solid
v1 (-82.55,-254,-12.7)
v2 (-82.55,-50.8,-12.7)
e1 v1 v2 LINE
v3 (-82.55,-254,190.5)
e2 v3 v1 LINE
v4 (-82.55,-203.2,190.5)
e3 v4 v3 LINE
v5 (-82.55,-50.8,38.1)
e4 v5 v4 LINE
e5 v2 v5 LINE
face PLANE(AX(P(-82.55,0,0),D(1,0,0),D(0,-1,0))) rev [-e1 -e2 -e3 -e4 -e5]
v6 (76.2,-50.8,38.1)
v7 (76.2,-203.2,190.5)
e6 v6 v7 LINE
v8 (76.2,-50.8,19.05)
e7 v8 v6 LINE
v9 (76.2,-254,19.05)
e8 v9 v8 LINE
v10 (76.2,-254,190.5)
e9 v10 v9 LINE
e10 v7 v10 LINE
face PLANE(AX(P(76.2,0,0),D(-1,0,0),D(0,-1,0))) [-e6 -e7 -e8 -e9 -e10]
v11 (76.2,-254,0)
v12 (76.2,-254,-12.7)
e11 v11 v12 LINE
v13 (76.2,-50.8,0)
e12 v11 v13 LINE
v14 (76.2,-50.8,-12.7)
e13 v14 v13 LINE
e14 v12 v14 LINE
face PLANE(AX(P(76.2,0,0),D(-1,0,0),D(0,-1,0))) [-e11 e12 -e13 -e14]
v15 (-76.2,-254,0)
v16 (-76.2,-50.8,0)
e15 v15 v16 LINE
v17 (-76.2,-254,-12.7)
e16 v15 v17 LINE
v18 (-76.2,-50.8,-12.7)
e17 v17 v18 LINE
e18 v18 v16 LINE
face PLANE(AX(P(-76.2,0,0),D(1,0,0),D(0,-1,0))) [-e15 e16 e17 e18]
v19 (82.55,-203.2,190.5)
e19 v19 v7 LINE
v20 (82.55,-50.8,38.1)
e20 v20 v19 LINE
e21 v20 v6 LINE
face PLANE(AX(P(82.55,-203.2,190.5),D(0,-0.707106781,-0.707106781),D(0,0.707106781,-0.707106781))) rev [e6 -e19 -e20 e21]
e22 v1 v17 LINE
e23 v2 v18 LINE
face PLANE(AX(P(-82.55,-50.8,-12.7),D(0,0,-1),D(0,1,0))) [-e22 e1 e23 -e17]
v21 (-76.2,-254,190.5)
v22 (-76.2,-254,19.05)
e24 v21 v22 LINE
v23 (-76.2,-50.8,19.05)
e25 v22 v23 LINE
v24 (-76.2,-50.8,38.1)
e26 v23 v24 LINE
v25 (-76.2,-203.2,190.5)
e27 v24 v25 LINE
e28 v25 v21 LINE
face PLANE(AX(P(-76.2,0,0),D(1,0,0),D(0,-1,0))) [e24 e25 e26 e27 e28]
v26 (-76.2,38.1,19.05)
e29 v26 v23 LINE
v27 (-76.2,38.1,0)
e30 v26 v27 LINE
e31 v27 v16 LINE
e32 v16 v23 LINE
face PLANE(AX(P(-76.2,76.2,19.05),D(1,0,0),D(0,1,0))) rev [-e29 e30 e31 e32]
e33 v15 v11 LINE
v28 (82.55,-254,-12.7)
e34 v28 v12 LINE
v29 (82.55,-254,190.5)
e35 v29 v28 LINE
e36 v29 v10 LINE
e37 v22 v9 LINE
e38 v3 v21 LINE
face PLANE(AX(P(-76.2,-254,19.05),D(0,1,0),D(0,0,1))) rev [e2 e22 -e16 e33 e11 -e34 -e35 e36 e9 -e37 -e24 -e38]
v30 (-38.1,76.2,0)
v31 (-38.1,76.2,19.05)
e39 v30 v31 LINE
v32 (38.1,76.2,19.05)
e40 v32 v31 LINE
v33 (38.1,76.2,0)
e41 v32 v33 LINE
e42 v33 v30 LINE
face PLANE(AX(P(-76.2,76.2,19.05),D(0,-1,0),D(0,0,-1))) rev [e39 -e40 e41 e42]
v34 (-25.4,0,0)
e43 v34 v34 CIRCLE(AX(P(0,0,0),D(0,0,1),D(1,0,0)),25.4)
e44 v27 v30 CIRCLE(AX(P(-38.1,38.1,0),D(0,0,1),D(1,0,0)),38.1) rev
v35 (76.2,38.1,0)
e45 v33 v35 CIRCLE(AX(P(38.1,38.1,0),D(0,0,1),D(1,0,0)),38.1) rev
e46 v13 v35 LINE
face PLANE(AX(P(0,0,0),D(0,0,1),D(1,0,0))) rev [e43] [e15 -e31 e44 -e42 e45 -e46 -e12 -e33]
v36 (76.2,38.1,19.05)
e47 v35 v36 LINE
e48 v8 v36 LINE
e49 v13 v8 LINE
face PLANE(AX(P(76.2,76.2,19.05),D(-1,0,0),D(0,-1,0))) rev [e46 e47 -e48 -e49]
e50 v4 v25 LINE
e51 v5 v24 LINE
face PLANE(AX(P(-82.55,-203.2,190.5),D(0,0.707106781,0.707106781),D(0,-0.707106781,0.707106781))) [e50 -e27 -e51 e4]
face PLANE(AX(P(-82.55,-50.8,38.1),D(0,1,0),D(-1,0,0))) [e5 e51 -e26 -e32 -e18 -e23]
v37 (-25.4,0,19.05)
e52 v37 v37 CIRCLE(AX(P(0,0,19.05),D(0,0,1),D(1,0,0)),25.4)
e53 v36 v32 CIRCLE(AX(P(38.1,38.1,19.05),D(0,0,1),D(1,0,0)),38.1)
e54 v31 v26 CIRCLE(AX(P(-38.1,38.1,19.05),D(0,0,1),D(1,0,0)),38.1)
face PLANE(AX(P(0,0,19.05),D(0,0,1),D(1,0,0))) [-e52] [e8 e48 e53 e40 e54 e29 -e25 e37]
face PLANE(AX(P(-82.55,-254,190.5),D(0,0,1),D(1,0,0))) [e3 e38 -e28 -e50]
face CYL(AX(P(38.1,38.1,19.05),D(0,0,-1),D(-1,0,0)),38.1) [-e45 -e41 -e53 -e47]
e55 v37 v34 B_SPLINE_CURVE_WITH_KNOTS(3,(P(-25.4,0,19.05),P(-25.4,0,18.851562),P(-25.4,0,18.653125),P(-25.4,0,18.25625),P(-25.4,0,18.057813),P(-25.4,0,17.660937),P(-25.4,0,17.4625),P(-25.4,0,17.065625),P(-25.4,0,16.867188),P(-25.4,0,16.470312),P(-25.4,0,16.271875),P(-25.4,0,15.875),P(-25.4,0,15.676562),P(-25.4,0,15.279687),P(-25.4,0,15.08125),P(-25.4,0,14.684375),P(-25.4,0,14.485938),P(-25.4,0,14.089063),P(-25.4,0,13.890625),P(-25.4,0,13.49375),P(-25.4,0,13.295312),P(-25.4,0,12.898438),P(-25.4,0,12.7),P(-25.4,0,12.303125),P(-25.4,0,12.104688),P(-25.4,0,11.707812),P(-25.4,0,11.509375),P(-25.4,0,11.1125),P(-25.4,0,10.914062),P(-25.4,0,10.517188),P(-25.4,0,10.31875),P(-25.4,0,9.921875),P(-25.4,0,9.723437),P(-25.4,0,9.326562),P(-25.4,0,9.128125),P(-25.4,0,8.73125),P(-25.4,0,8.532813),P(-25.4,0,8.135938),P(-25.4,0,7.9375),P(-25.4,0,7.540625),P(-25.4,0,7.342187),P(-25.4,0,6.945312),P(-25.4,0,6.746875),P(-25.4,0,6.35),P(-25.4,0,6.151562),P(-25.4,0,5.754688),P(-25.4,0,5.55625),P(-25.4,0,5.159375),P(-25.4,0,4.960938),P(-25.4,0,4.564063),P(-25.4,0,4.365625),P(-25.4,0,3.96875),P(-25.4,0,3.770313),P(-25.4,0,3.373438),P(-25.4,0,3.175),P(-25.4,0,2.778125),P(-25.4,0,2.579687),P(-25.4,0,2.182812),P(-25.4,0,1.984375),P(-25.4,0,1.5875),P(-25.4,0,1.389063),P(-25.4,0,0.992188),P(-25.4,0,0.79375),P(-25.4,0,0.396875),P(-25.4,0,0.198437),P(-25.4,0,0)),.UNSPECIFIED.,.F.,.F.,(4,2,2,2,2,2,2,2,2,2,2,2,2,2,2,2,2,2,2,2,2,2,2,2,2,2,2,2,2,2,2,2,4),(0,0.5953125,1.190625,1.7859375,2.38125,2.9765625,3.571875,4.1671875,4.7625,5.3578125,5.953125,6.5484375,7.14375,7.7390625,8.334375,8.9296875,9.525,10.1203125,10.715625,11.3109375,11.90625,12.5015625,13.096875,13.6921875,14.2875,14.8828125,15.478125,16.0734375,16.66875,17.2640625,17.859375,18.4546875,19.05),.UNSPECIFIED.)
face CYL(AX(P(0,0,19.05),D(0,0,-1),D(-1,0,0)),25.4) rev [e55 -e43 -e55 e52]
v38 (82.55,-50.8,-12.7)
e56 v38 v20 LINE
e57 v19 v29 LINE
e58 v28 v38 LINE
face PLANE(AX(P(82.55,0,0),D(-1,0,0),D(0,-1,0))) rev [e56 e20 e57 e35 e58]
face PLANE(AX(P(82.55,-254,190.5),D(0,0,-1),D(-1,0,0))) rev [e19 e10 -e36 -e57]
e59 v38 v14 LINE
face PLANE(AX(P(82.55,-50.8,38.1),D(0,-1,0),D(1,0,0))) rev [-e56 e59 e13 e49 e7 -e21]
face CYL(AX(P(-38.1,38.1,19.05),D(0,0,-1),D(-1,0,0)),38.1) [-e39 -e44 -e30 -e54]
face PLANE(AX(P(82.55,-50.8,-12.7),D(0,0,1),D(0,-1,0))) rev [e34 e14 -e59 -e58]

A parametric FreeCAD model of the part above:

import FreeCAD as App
import Part
import Sketcher
Q = App.Units.Quantity


def edges_at(feature, points):
    """Names of the edges that pass closest to the given points."""
    edges = feature.Shape.Edges
    near = lambda p: min(range(len(edges)), key=lambda i: edges[i].distToShape(Part.Vertex(*p))[0])
    return sorted({f"Edge{near(p) + 1}" for p in points})

doc = App.newDocument("Part")
params = doc.addObject("Spreadsheet::Sheet", "Params")
for row, (alias, value) in enumerate([
    ("sketch1_width", "6 in"),
    ("sketch1_height", "13 in"),
    ("pad1_length", "0.75 in"),
    ("sketch2_diameter", "2 in"),
    ("fillet_radius", "1.5 in"),
    ("sketch3_width", "8 in"),
    ("sketch3_width2", "2 in"),
    ("pad2_length", "0.25 in"),
], start=1):
    params.set(f"A{row}", alias)
    params.set(f"B{row}", "=" + value)
    params.setAlias(f"B{row}", alias)

body = doc.addObject("PartDesign::Body", "Body")

# Sketch on XY plane
sketch1 = body.newObject("Sketcher::SketchObject", "Sketch")
sketch1.AttachmentSupport = (doc.getObject("XY_Plane"), [""])
sketch1.MapMode = "FlatFace"
sketch1.addGeometry([
    Part.LineSegment(App.Vector(-76.2, 76.2, 0), App.Vector(-76.2, -254, 0)),
    Part.LineSegment(App.Vector(-76.2, -254, 0), App.Vector(76.2, -254, 0)),
    Part.LineSegment(App.Vector(76.2, -254, 0), App.Vector(76.2, 76.2, 0)),
    Part.LineSegment(App.Vector(76.2, 76.2, 0), App.Vector(-76.2, 76.2, 0)),
], False)
sketch1.addConstraint([
    Sketcher.Constraint("Coincident", 0, 2, 1, 1),
    Sketcher.Constraint("Coincident", 1, 2, 2, 1),
    Sketcher.Constraint("Coincident", 2, 2, 3, 1),
    Sketcher.Constraint("Coincident", 3, 2, 0, 1),
    Sketcher.Constraint("Vertical", 0),
    Sketcher.Constraint("Horizontal", 1),
    Sketcher.Constraint("Vertical", 2),
    Sketcher.Constraint("Horizontal", 3),
    Sketcher.Constraint("DistanceX", 1, 1, 1, 2, Q("6 in")),
    Sketcher.Constraint("DistanceY", 0, 2, 0, 1, Q("13 in")),
    Sketcher.Constraint("DistanceX", 0, 2, -1, 1, Q("3 in")),
    Sketcher.Constraint("DistanceY", 0, 2, -1, 1, Q("10 in")),
])
sketch1.setExpression("Constraints[8]", "Params.sketch1_width")
sketch1.setExpression("Constraints[9]", "Params.sketch1_height")
pad1 = body.newObject("PartDesign::Pad", "Pad")
pad1.Profile = sketch1
pad1.setExpression("Length", "Params.pad1_length")

# Sketch on XY plane
sketch2 = body.newObject("Sketcher::SketchObject", "Sketch001")
sketch2.AttachmentSupport = (doc.getObject("XY_Plane"), [""])
sketch2.MapMode = "FlatFace"
sketch2.addGeometry(Part.Circle(App.Vector(0, 0, 0), App.Vector(0, 0, 1), 25.4), False)
sketch2.addConstraint([
    Sketcher.Constraint("Coincident", 0, 3, -1, 1),
    Sketcher.Constraint("Diameter", 0, Q("2 in")),
])
sketch2.setExpression("Constraints[1]", "Params.sketch2_diameter")
pocket1 = body.newObject("PartDesign::Pocket", "Pocket")
pocket1.Profile = sketch2
pocket1.Type = "ThroughAll"
pocket1.Reversed = True
doc.recompute()

fillet = body.newObject("PartDesign::Fillet", "Fillet")
fillet.Base = (pocket1, edges_at(pocket1, [(-76.2, 76.2, 9.525), (76.2, 76.2, 9.525)]))
fillet.setExpression("Radius", "Params.fillet_radius")

# Sketch on YZ plane
sketch3 = body.newObject("Sketcher::SketchObject", "Sketch002")
sketch3.AttachmentSupport = (doc.getObject("YZ_Plane"), [""])
sketch3.MapMode = "FlatFace"
sketch3.AttachmentOffset = App.Placement(App.Vector(0, 0, 3 * 25.4), App.Rotation())
sketch3.addGeometry([
    Part.LineSegment(App.Vector(-254, -12.7, 0), App.Vector(-50.8, -12.7, 0)),  # 0
    Part.LineSegment(App.Vector(-50.8, -12.7, 0), App.Vector(-50.8, 38.1, 0)),  # 1
    Part.LineSegment(App.Vector(-50.8, 38.1, 0), App.Vector(-203.2, 190.5, 0)),  # 2
    Part.LineSegment(App.Vector(-203.2, 190.5, 0), App.Vector(-254, 190.5, 0)),  # 3
    Part.LineSegment(App.Vector(-254, 190.5, 0), App.Vector(-254, -12.7, 0)),  # 4
], False)
sketch3.addConstraint([
    Sketcher.Constraint("Coincident", 0, 2, 1, 1),
    Sketcher.Constraint("Coincident", 1, 2, 2, 1),
    Sketcher.Constraint("Coincident", 2, 2, 3, 1),
    Sketcher.Constraint("Coincident", 3, 2, 4, 1),
    Sketcher.Constraint("Coincident", 4, 2, 0, 1),
    Sketcher.Constraint("Horizontal", 0),
    Sketcher.Constraint("Vertical", 1),
    Sketcher.Constraint("Horizontal", 3),
    Sketcher.Constraint("Vertical", 4),
    Sketcher.Constraint("Equal", 3, 1),
    Sketcher.Constraint("Equal", 0, 4),
    Sketcher.Constraint("DistanceX", 0, 1, 0, 2, Q("8 in")),
    Sketcher.Constraint("DistanceX", 3, 2, 3, 1, Q("2 in")),
    Sketcher.Constraint("DistanceX", 0, 2, -1, 1, Q("2 in")),
    Sketcher.Constraint("DistanceY", 0, 2, -1, 1, Q("0.5 in")),
])
sketch3.setExpression("Constraints[11]", "Params.sketch3_width")
sketch3.setExpression("Constraints[12]", "Params.sketch3_width2")
pad2 = body.newObject("PartDesign::Pad", "Pad001")
pad2.Profile = sketch3
pad2.setExpression("Length", "Params.pad2_length")
doc.recompute()

mirrored = body.newObject("PartDesign::Mirrored", "Mirrored")
mirrored.Originals = [pad2]
mirrored.MirrorPlane = (doc.getObject("YZ_Plane"), [""])
body.Tip = mirrored

doc.recompute()
